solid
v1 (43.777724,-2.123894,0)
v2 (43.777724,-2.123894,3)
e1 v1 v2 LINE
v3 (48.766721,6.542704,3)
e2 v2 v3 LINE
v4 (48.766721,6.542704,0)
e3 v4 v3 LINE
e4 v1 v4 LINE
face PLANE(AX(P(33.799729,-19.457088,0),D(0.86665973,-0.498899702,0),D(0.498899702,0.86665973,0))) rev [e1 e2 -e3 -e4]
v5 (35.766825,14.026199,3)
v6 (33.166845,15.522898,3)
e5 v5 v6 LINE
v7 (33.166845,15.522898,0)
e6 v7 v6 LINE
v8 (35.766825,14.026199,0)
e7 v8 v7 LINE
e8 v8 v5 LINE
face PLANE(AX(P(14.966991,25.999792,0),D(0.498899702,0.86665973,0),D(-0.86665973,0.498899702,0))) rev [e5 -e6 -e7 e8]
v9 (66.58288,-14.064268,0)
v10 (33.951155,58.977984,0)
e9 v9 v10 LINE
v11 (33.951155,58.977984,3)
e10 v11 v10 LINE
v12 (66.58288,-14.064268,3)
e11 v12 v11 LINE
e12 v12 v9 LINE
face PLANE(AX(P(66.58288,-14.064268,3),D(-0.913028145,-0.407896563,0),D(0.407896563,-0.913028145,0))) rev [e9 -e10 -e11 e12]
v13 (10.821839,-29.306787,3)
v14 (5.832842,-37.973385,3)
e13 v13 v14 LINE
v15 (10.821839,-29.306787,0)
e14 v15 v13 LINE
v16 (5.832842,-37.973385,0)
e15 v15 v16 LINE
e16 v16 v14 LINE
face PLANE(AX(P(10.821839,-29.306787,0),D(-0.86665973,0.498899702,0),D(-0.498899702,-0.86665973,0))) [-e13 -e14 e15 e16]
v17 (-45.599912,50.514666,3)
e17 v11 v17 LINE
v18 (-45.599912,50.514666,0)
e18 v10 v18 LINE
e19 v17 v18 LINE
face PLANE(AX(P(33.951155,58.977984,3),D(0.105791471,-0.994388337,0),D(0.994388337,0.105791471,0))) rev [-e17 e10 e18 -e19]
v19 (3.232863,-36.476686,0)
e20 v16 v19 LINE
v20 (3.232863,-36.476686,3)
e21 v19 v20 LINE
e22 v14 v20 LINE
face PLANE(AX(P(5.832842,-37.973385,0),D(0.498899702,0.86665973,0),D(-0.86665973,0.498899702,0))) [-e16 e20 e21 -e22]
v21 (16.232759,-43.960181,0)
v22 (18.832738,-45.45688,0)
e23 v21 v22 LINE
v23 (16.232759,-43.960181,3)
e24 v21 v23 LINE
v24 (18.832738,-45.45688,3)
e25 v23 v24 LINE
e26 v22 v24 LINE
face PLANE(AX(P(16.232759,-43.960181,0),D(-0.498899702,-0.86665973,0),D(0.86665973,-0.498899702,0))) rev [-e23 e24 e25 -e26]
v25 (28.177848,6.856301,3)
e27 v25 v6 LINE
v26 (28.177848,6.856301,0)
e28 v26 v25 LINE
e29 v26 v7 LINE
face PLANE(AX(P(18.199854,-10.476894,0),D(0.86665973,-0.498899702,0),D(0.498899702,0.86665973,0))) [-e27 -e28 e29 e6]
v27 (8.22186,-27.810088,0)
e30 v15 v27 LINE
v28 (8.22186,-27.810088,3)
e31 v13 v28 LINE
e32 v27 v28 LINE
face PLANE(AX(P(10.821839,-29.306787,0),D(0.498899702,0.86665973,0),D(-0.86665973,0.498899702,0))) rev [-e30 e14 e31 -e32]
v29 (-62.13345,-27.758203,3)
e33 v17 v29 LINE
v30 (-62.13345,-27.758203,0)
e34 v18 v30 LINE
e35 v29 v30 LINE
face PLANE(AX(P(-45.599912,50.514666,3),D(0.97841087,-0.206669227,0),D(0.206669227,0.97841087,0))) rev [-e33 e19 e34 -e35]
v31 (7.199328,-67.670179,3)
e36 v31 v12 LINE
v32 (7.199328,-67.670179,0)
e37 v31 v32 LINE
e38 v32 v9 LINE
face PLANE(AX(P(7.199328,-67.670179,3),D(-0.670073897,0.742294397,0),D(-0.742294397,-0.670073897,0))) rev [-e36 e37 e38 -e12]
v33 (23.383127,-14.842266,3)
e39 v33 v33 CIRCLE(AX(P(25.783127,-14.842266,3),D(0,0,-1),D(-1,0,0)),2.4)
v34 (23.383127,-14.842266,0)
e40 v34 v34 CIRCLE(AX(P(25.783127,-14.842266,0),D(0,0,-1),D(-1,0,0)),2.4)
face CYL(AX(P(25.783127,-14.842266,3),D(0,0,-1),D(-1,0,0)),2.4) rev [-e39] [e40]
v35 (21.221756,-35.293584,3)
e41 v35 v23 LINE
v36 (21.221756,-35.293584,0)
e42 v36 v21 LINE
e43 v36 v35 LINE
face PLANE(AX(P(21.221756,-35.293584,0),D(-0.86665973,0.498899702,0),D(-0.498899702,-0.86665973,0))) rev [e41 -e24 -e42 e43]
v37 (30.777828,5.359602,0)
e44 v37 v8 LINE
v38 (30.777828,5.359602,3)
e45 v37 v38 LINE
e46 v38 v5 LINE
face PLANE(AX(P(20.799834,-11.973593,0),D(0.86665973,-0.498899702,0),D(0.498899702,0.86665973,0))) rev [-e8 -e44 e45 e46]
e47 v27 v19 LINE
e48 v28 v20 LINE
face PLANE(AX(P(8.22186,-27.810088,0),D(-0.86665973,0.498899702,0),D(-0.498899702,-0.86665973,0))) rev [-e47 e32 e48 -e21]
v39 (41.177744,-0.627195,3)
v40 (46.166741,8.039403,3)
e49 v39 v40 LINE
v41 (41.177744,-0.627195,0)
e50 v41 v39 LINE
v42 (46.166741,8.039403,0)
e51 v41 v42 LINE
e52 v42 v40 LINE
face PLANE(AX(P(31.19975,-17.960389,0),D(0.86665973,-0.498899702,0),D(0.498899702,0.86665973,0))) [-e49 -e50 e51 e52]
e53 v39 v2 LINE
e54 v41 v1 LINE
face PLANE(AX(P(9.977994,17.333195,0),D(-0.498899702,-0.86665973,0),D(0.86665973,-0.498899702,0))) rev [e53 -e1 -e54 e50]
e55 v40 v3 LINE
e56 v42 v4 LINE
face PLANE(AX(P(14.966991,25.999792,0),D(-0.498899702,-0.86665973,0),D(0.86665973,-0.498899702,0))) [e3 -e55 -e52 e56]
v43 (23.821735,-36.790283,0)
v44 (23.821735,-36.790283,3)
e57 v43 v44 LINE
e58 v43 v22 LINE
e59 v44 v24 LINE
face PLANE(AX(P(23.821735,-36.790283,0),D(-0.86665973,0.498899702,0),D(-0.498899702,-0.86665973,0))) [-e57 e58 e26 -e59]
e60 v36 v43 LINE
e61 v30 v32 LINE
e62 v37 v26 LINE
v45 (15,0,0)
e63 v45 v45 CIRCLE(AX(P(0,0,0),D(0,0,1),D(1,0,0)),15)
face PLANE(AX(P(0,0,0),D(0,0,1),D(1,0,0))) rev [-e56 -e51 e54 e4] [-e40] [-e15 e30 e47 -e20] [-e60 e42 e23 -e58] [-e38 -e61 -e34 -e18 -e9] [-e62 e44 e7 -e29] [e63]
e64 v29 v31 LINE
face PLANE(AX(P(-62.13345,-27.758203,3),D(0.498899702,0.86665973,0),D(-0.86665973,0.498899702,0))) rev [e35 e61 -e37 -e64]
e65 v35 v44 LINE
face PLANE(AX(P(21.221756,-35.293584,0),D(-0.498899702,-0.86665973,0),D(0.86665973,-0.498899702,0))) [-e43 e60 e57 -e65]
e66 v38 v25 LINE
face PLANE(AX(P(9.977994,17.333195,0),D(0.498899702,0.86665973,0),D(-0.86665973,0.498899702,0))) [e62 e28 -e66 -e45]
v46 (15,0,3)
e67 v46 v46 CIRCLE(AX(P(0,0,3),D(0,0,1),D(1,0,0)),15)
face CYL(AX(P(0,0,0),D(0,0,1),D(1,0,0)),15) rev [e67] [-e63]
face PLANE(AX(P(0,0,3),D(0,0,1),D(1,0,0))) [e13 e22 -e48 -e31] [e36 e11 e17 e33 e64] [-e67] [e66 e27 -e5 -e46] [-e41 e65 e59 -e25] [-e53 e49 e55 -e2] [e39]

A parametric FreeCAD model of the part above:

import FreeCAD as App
import Part
import Sketcher

V = App.Vector
Q = App.Units.Quantity

doc = App.newDocument("Part")
body = doc.addObject("PartDesign::Body", "Body")

sketch1 = body.newObject("Sketcher::SketchObject", "Sketch")
sketch1.AttachmentSupport = (doc.getObject("XY_Plane"), [""])
sketch1.MapMode = "FlatFace"
sketch1.addGeometry([
    Part.LineSegment(V(-62.13345, -27.758203, 0), V(7.199328, -67.670179, 0)),
    Part.LineSegment(V(7.199328, -67.670179, 0), V(66.58288, -14.064268, 0)),
    Part.LineSegment(V(66.58288, -14.064268, 0), V(33.951155, 58.977984, 0)),
    Part.LineSegment(V(33.951155, 58.977984, 0), V(-45.599912, 50.514666, 0)),
    Part.LineSegment(V(-45.599912, 50.514666, 0), V(-62.13345, -27.758203, 0)),
], False)
sketch1.addConstraint([
    Sketcher.Constraint("Coincident", 0, 2, 1, 1),
    Sketcher.Constraint("Coincident", 1, 2, 2, 1),
    Sketcher.Constraint("Coincident", 2, 2, 3, 1),
    Sketcher.Constraint("Coincident", 3, 2, 4, 1),
    Sketcher.Constraint("Coincident", 4, 2, 0, 1),
    Sketcher.Constraint("Equal", 0, 1),
    Sketcher.Constraint("Equal", 1, 2),
    Sketcher.Constraint("Equal", 2, 3),
    Sketcher.Constraint("Equal", 3, 4),
    Sketcher.Constraint("Distance", 0, Q("80 mm")),
    Sketcher.Constraint("DistanceX", -1, 1, 0, 2, Q("7.199328 mm")),
    Sketcher.Constraint("DistanceY", 0, 2, -1, 1, Q("67.670179 mm")),
    Sketcher.Constraint("DistanceX", -1, 1, 1, 2, Q("66.58288 mm")),
    Sketcher.Constraint("DistanceX", 4, 2, -1, 1, Q("62.13345 mm")),
    Sketcher.Constraint("DistanceY", 1, 2, 2, 2, Q("73.042252 mm")),
])
pad1 = body.newObject("PartDesign::Pad", "Pad")
pad1.Profile = sketch1
pad1.Length = 3

sketch2 = body.newObject("Sketcher::SketchObject", "Sketch001")
sketch2.AttachmentSupport = (doc.getObject("XY_Plane"), [""])
sketch2.MapMode = "FlatFace"
sketch2.AttachmentOffset = App.Placement(V(0, 0, 3), App.Rotation())
sketch2.addGeometry(Part.Circle(V(0, 0, 0), V(0, 0, 1), 15), False)
sketch2.addConstraint([
    Sketcher.Constraint("Coincident", 0, 3, -1, 1),
    Sketcher.Constraint("Diameter", 0, Q("30 mm")),
])
pocket1 = body.newObject("PartDesign::Pocket", "Pocket")
pocket1.Profile = sketch2
pocket1.Length = 3

sketch3 = body.newObject("Sketcher::SketchObject", "Sketch002")
sketch3.AttachmentSupport = (doc.getObject("XY_Plane"), [""])
sketch3.MapMode = "FlatFace"
sketch3.AttachmentOffset = App.Placement(V(0, 0, 3), App.Rotation())
sketch3.addGeometry([
    Part.LineSegment(V(33.166845, 15.522898, 0), V(28.177848, 6.856301, 0)),
    Part.LineSegment(V(28.177848, 6.856301, 0), V(30.777828, 5.359602, 0)),
    Part.LineSegment(V(30.777828, 5.359602, 0), V(35.766825, 14.026199, 0)),
    Part.LineSegment(V(35.766825, 14.026199, 0), V(33.166845, 15.522898, 0)),
    Part.LineSegment(V(46.166741, 8.039403, 0), V(41.177744, -0.627195, 0)),
    Part.LineSegment(V(41.177744, -0.627195, 0), V(43.777724, -2.123894, 0)),
    Part.LineSegment(V(43.777724, -2.123894, 0), V(48.766721, 6.542704, 0)),
    Part.LineSegment(V(48.766721, 6.542704, 0), V(46.166741, 8.039403, 0)),
    Part.LineSegment(V(5.832842, -37.973385, 0), V(10.821839, -29.306787, 0)),
    Part.LineSegment(V(10.821839, -29.306787, 0), V(8.22186, -27.810088, 0)),
    Part.LineSegment(V(8.22186, -27.810088, 0), V(3.232863, -36.476686, 0)),
    Part.LineSegment(V(3.232863, -36.476686, 0), V(5.832842, -37.973385, 0)),
    Part.LineSegment(V(18.832738, -45.45688, 0), V(23.821735, -36.790283, 0)),
    Part.LineSegment(V(23.821735, -36.790283, 0), V(21.221756, -35.293584, 0)),
    Part.LineSegment(V(21.221756, -35.293584, 0), V(16.232759, -43.960181, 0)),
    Part.LineSegment(V(16.232759, -43.960181, 0), V(18.832738, -45.45688, 0)),
], False)
sketch3.addConstraint([
    Sketcher.Constraint("Coincident", 0, 2, 1, 1),
    Sketcher.Constraint("Coincident", 1, 2, 2, 1),
    Sketcher.Constraint("Coincident", 2, 2, 3, 1),
    Sketcher.Constraint("Coincident", 3, 2, 0, 1),
    Sketcher.Constraint("Coincident", 4, 2, 5, 1),
    Sketcher.Constraint("Coincident", 5, 2, 6, 1),
    Sketcher.Constraint("Coincident", 6, 2, 7, 1),
    Sketcher.Constraint("Coincident", 7, 2, 4, 1),
    Sketcher.Constraint("Coincident", 8, 2, 9, 1),
    Sketcher.Constraint("Coincident", 9, 2, 10, 1),
    Sketcher.Constraint("Coincident", 10, 2, 11, 1),
    Sketcher.Constraint("Coincident", 11, 2, 8, 1),
    Sketcher.Constraint("Coincident", 12, 2, 13, 1),
    Sketcher.Constraint("Coincident", 13, 2, 14, 1),
    Sketcher.Constraint("Coincident", 14, 2, 15, 1),
    Sketcher.Constraint("Coincident", 15, 2, 12, 1),
    Sketcher.Constraint("Perpendicular", 0, 1),
    Sketcher.Constraint("Perpendicular", 1, 2),
    Sketcher.Constraint("Perpendicular", 2, 3),
    Sketcher.Constraint("Perpendicular", 3, 4),
    Sketcher.Constraint("Perpendicular", 4, 5),
    Sketcher.Constraint("Perpendicular", 5, 6),
    Sketcher.Constraint("Perpendicular", 6, 7),
    Sketcher.Constraint("Perpendicular", 7, 8),
    Sketcher.Constraint("Perpendicular", 8, 9),
    Sketcher.Constraint("Perpendicular", 9, 10),
    Sketcher.Constraint("Perpendicular", 10, 11),
    Sketcher.Constraint("Perpendicular", 11, 12),
    Sketcher.Constraint("Perpendicular", 12, 13),
    Sketcher.Constraint("Perpendicular", 13, 14),
    Sketcher.Constraint("Perpendicular", 14, 15),
    Sketcher.Constraint("Equal", 2, 4),
    Sketcher.Constraint("Equal", 3, 5),
    Sketcher.Constraint("Equal", 6, 8),
    Sketcher.Constraint("Equal", 7, 9),
    Sketcher.Constraint("Equal", 10, 12),
    Sketcher.Constraint("Equal", 11, 13),
    Sketcher.Constraint("Distance", 0, Q("10 mm")),
    Sketcher.Constraint("Distance", 1, Q("3 mm")),
    Sketcher.Constraint("DistanceY", -1, 1, 0, 2, Q("6.856301 mm")),
    Sketcher.Constraint("DistanceY", -1, 1, 1, 2, Q("5.359602 mm")),
    Sketcher.Constraint("DistanceX", 3, 2, 4, 2, Q("8.010899 mm")),
    Sketcher.Constraint("DistanceY", 1, 2, 6, 2, Q("1.183102 mm")),
    Sketcher.Constraint("DistanceY", 11, 2, 12, 2, Q("1.183102 mm")),
    Sketcher.Constraint("DistanceX", -1, 1, 0, 2, Q("28.177848 mm")),
    Sketcher.Constraint("DistanceX", -1, 1, 8, 2, Q("10.821839 mm")),
    Sketcher.Constraint("DistanceY", 9, 2, -1, 1, Q("27.810088 mm")),
    Sketcher.Constraint("DistanceX", -1, 1, 14, 2, Q("16.232759 mm")),
])
pocket2 = body.newObject("PartDesign::Pocket", "Pocket001")
pocket2.Profile = sketch3
pocket2.Length = 3

sketch4 = body.newObject("Sketcher::SketchObject", "Sketch003")
sketch4.AttachmentSupport = (doc.getObject("XY_Plane"), [""])
sketch4.MapMode = "FlatFace"
sketch4.addGeometry(Part.Circle(V(25.783127, -14.842266, 0), V(0, 0, 1), 2.4), False)
sketch4.addConstraint([
    Sketcher.Constraint("Diameter", 0, Q("4.8 mm")),
    Sketcher.Constraint("DistanceX", -1, 1, 0, 3, Q("25.783127 mm")),
    Sketcher.Constraint("DistanceY", 0, 3, -1, 1, Q("14.842266 mm")),
])
pocket3 = body.newObject("PartDesign::Pocket", "Pocket002")
pocket3.Profile = sketch4
pocket3.Length = 3
pocket3.Reversed = True

doc.recompute()
